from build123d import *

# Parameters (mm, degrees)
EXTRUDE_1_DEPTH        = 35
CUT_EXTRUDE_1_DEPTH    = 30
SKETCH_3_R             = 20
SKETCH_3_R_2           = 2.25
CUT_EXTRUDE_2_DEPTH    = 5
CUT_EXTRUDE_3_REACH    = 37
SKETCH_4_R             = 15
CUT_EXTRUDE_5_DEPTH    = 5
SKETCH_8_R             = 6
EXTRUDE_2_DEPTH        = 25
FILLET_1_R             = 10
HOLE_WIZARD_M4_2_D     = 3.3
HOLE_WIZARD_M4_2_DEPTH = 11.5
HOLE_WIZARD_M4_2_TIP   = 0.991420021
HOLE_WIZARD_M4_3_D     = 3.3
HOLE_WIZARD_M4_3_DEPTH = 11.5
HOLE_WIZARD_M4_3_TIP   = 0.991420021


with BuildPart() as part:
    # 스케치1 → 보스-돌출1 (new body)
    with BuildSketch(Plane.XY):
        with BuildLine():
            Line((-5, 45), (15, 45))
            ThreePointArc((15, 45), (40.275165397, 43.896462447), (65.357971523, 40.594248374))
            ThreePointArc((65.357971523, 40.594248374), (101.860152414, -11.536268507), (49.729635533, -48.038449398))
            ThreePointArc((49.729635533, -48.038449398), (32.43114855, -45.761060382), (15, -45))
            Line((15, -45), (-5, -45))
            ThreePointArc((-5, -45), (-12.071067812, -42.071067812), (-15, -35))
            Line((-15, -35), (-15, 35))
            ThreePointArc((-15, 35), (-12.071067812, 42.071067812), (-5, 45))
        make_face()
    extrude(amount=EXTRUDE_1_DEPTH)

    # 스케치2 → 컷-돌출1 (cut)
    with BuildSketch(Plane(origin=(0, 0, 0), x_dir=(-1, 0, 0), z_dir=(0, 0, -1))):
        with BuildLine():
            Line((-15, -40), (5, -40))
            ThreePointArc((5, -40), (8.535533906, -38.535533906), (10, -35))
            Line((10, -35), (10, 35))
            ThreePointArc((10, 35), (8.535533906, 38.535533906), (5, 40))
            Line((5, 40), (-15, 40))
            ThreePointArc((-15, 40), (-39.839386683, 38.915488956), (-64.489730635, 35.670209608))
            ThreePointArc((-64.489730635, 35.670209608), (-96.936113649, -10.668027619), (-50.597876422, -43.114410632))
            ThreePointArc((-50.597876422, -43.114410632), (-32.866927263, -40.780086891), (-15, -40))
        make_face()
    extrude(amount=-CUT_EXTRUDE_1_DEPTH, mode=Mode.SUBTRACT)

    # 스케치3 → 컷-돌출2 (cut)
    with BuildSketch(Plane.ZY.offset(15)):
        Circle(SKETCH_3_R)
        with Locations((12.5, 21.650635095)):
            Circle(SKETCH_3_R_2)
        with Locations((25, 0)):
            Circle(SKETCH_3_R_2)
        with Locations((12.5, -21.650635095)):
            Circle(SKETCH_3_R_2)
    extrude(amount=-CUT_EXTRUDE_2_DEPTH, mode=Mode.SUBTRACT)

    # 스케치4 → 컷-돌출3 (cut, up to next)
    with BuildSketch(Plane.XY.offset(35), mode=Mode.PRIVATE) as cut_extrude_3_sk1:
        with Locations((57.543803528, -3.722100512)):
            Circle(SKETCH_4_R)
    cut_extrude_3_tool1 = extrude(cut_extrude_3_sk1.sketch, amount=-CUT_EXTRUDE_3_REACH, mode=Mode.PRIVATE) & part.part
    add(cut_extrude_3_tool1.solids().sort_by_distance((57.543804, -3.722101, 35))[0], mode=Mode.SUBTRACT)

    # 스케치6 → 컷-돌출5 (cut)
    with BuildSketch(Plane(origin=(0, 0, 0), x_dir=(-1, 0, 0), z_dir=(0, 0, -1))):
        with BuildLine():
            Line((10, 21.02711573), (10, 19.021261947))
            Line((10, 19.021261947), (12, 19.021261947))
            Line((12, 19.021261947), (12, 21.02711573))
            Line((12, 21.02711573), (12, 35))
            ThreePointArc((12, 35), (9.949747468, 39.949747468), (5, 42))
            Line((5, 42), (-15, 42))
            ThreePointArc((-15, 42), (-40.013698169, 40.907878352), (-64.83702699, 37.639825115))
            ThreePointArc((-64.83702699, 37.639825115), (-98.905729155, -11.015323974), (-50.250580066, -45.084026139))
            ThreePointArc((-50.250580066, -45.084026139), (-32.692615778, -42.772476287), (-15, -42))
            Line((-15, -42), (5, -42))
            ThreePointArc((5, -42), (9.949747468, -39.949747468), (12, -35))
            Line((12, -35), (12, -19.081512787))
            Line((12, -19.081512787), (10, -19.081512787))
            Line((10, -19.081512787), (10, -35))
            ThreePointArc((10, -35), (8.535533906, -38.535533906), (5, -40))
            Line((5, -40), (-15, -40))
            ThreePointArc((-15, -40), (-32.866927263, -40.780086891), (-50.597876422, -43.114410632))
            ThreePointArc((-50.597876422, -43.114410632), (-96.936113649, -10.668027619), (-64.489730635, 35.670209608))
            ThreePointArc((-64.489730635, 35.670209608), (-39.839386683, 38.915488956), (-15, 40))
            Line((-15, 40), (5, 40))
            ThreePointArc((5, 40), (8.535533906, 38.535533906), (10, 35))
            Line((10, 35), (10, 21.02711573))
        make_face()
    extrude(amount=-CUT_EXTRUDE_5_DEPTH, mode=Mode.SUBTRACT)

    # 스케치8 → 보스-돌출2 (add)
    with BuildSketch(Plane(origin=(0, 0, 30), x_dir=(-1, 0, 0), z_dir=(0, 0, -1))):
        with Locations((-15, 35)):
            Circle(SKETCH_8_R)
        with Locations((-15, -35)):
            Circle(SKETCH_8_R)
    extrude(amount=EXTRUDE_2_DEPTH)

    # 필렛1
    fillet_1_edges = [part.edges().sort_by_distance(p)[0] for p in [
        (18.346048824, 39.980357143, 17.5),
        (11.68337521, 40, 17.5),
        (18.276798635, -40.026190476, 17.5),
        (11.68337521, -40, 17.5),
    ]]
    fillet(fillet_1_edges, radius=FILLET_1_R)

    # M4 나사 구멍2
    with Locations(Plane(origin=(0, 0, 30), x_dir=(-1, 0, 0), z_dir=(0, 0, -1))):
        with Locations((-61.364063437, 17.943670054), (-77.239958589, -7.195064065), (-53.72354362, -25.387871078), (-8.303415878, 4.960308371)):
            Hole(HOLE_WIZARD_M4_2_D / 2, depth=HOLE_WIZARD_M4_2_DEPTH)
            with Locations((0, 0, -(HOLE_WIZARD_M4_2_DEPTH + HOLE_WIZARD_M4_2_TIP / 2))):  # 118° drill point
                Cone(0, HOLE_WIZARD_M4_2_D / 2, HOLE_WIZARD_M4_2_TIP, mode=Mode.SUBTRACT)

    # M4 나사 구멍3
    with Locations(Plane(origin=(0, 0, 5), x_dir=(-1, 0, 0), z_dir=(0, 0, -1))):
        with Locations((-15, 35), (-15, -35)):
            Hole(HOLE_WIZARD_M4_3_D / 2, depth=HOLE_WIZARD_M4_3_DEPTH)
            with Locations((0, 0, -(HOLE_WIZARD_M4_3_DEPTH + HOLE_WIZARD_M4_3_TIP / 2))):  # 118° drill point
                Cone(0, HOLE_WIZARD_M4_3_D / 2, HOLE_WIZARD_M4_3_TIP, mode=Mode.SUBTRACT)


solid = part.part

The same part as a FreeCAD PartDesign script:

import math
import FreeCAD as App
import Part
import Sketcher
Q = App.Units.Quantity


def edges_at(feature, points):
    """Names of the edges that pass closest to the given points."""
    edges = feature.Shape.Edges
    near = lambda p: min(range(len(edges)), key=lambda i: edges[i].distToShape(Part.Vertex(*p))[0])
    return sorted({f"Edge{near(p) + 1}" for p in points})

doc = App.newDocument("Part")
body = doc.addObject("PartDesign::Body", "Body")

# Sketch on XY plane
sketch1 = body.newObject("Sketcher::SketchObject", "Sketch")
sketch1.AttachmentSupport = (doc.getObject("XY_Plane"), [""])
sketch1.MapMode = "FlatFace"
sketch1.addGeometry([
    Part.LineSegment(App.Vector(15, 45, 0), App.Vector(-5, 45, 0)),  # 0
    Part.ArcOfCircle(Part.Circle(App.Vector(-5, 35, 0), App.Vector(0, 0, 1), 10), math.radians(90), math.radians(180)),  # 1
    Part.LineSegment(App.Vector(-15, 35, 0), App.Vector(-15, -35, 0)),  # 2
    Part.ArcOfCircle(Part.Circle(App.Vector(-5, -35, 0), App.Vector(0, 0, 1), 10), math.radians(180), math.radians(270)),  # 3
    Part.LineSegment(App.Vector(-5, -45, 0), App.Vector(15, -45, 0)),  # 4
    Part.ArcOfCircle(Part.Circle(App.Vector(15, -245, 0), App.Vector(0, 0, 1), 200), math.radians(80), math.radians(90)),  # 5
    Part.ArcOfCircle(Part.Circle(App.Vector(58, -4, 0), App.Vector(0, 0, 1), 45), math.radians(-100), math.radians(80)),  # 6
    Part.ArcOfCircle(Part.Circle(App.Vector(15, -245, 0), App.Vector(0, 0, 1), 290), math.radians(80), math.radians(90)),  # 7
], False)
sketch1.addConstraint([
    Sketcher.Constraint("Tangent", 0, 2, 1, 1),
    Sketcher.Constraint("Tangent", 1, 2, 2, 1),
    Sketcher.Constraint("Tangent", 2, 2, 3, 1),
    Sketcher.Constraint("Tangent", 3, 2, 4, 1),
    Sketcher.Constraint("Tangent", 4, 2, 5, 2),
    Sketcher.Constraint("Tangent", 5, 1, 6, 1),
    Sketcher.Constraint("Tangent", 6, 2, 7, 1),
    Sketcher.Constraint("Tangent", 7, 2, 0, 1),
    Sketcher.Constraint("Horizontal", 0),
    Sketcher.Constraint("Vertical", 2),
    Sketcher.Constraint("Horizontal", 4),
    Sketcher.Constraint("Coincident", 7, 3, 5, 3),
    Sketcher.Constraint("Equal", 1, 3),
    Sketcher.Constraint("Radius", 1, Q("10 mm")),
    Sketcher.Constraint("Radius", 5, Q("200 mm")),
    Sketcher.Constraint("Radius", 6, Q("45 mm")),
    Sketcher.Constraint("DistanceX", 0, 2, 0, 1, Q("20 mm")),
    Sketcher.Constraint("DistanceX", 1, 3, -1, 1, Q("5 mm")),
    Sketcher.Constraint("DistanceY", -1, 1, 1, 3, Q("35 mm")),
    Sketcher.Constraint("DistanceY", 6, 3, -1, 1, Q("3.722101 mm")),
])
pad1 = body.newObject("PartDesign::Pad", "Pad")
pad1.Profile = sketch1
pad1.Length = 35

# Sketch on XY plane
sketch2 = body.newObject("Sketcher::SketchObject", "Sketch001")
sketch2.AttachmentSupport = (doc.getObject("XY_Plane"), [""])
sketch2.MapMode = "FlatFace"
sketch2.addGeometry([
    Part.LineSegment(App.Vector(15, -40, 0), App.Vector(-5, -40, 0)),  # 0
    Part.ArcOfCircle(Part.Circle(App.Vector(-5, -35, 0), App.Vector(0, 0, 1), 5), math.radians(180), math.radians(270)),  # 1
    Part.LineSegment(App.Vector(-10, -35, 0), App.Vector(-10, 35, 0)),  # 2
    Part.ArcOfCircle(Part.Circle(App.Vector(-5, 35, 0), App.Vector(0, 0, 1), 5), math.radians(90), math.radians(180)),  # 3
    Part.LineSegment(App.Vector(-5, 40, 0), App.Vector(15, 40, 0)),  # 4
    Part.ArcOfCircle(Part.Circle(App.Vector(15, -245, 0), App.Vector(0, 0, 1), 285), math.radians(80), math.radians(90)),  # 5
    Part.ArcOfCircle(Part.Circle(App.Vector(58, -4, 0), App.Vector(0, 0, 1), 40), math.radians(-100), math.radians(80)),  # 6
    Part.ArcOfCircle(Part.Circle(App.Vector(15, -245, 0), App.Vector(0, 0, 1), 205), math.radians(80), math.radians(90)),  # 7
], False)
sketch2.addConstraint([
    Sketcher.Constraint("Tangent", 0, 2, 1, 2),
    Sketcher.Constraint("Tangent", 1, 1, 2, 1),
    Sketcher.Constraint("Tangent", 2, 2, 3, 2),
    Sketcher.Constraint("Tangent", 3, 1, 4, 1),
    Sketcher.Constraint("Tangent", 4, 2, 5, 2),
    Sketcher.Constraint("Tangent", 5, 1, 6, 2),
    Sketcher.Constraint("Tangent", 6, 1, 7, 1),
    Sketcher.Constraint("Tangent", 7, 2, 0, 1),
    Sketcher.Constraint("Horizontal", 0),
    Sketcher.Constraint("Vertical", 2),
    Sketcher.Constraint("Horizontal", 4),
    Sketcher.Constraint("Coincident", 7, 3, 5, 3),
    Sketcher.Constraint("Equal", 1, 3),
    Sketcher.Constraint("Radius", 1, Q("5 mm")),
    Sketcher.Constraint("Radius", 5, Q("285 mm")),
    Sketcher.Constraint("Radius", 6, Q("40 mm")),
    Sketcher.Constraint("DistanceX", 0, 2, 0, 1, Q("20 mm")),
    Sketcher.Constraint("DistanceX", 1, 3, -1, 1, Q("5 mm")),
    Sketcher.Constraint("DistanceY", 1, 3, -1, 1, Q("35 mm")),
    Sketcher.Constraint("DistanceY", 6, 3, -1, 1, Q("3.722101 mm")),
])
pocket1 = body.newObject("PartDesign::Pocket", "Pocket")
pocket1.Profile = sketch2
pocket1.Length = 30
pocket1.Reversed = True

# Sketch on YZ plane
sketch3 = body.newObject("Sketcher::SketchObject", "Sketch002")
sketch3.AttachmentSupport = (doc.getObject("YZ_Plane"), [""])
sketch3.MapMode = "FlatFace"
sketch3.AttachmentOffset = App.Placement(App.Vector(0, 0, -15), App.Rotation())
sketch3.addGeometry([
    Part.Circle(App.Vector(0, 0, 0), App.Vector(0, 0, 1), 20),
    Part.Circle(App.Vector(21.7, 12.5, 0), App.Vector(0, 0, 1), 2.2),
    Part.Circle(App.Vector(0, 25, 0), App.Vector(0, 0, 1), 2.2),
    Part.Circle(App.Vector(-21.7, 12.5, 0), App.Vector(0, 0, 1), 2.2),
], False)
sketch3.addConstraint([
    Sketcher.Constraint("Coincident", 0, 3, -1, 1),
    Sketcher.Constraint("Equal", 1, 2),
    Sketcher.Constraint("Equal", 2, 3),
    Sketcher.Constraint("Symmetric", 1, 3, 3, 3, -2),
    Sketcher.Constraint("PointOnObject", 2, 3, -2),
    Sketcher.Constraint("Diameter", 0, Q("40 mm")),
    Sketcher.Constraint("Diameter", 1, Q("4.5 mm")),
    Sketcher.Constraint("DistanceY", -1, 1, 2, 3, Q("25 mm")),
    Sketcher.Constraint("DistanceY", -1, 1, 1, 3, Q("12.5 mm")),
    Sketcher.Constraint("DistanceX", 3, 3, 1, 3, Q("43.30127 mm")),
])
pocket2 = body.newObject("PartDesign::Pocket", "Pocket001")
pocket2.Profile = sketch3
pocket2.Length = 5
pocket2.Reversed = True

# Sketch on XY plane
sketch4 = body.newObject("Sketcher::SketchObject", "Sketch003")
sketch4.AttachmentSupport = (doc.getObject("XY_Plane"), [""])
sketch4.MapMode = "FlatFace"
sketch4.AttachmentOffset = App.Placement(App.Vector(0, 0, 35), App.Rotation())
sketch4.addGeometry(Part.Circle(App.Vector(58, -4, 0), App.Vector(0, 0, 1), 15), False)
sketch4.addConstraint([
    Sketcher.Constraint("Diameter", 0, Q("30 mm")),
    Sketcher.Constraint("DistanceY", 0, 3, -1, 1, Q("3.722101 mm")),
    Sketcher.Constraint("DistanceX", -1, 1, 0, 3, Q("57.543804 mm")),
])
pocket3 = body.newObject("PartDesign::Pocket", "Pocket002")
pocket3.Profile = sketch4
pocket3.Type = "UpToFirst"

# Sketch on XY plane
sketch5 = body.newObject("Sketcher::SketchObject", "Sketch004")
sketch5.AttachmentSupport = (doc.getObject("XY_Plane"), [""])
sketch5.MapMode = "FlatFace"
sketch5.addGeometry([
    Part.LineSegment(App.Vector(-10, 19, 0), App.Vector(-12, 19, 0)),  # 0
    Part.LineSegment(App.Vector(-12, 19, 0), App.Vector(-12, 35, 0)),  # 1
    Part.ArcOfCircle(Part.Circle(App.Vector(-5, 35, 0), App.Vector(0, 0, 1), 7), math.radians(90), math.radians(180)),  # 2
    Part.LineSegment(App.Vector(-5, 42, 0), App.Vector(15, 42, 0)),  # 3
    Part.ArcOfCircle(Part.Circle(App.Vector(15, -245, 0), App.Vector(0, 0, 1), 287), math.radians(80), math.radians(90)),  # 4
    Part.ArcOfCircle(Part.Circle(App.Vector(57.5, -3.7, 0), App.Vector(0, 0, 1), 42), math.radians(-100), math.radians(80)),  # 5
    Part.ArcOfCircle(Part.Circle(App.Vector(15, -245, 0), App.Vector(0, 0, 1), 203), math.radians(80), math.radians(90)),  # 6
    Part.LineSegment(App.Vector(15, -42, 0), App.Vector(-5, -42, 0)),  # 7
    Part.ArcOfCircle(Part.Circle(App.Vector(-5, -35, 0), App.Vector(0, 0, 1), 7), math.radians(-180), math.radians(-90)),  # 8
    Part.LineSegment(App.Vector(-12, -35, 0), App.Vector(-12, -19.1, 0)),  # 9
    Part.LineSegment(App.Vector(-12, -19.1, 0), App.Vector(-10, -19.1, 0)),  # 10
    Part.LineSegment(App.Vector(-10, -19.1, 0), App.Vector(-10, -35, 0)),  # 11
    Part.ArcOfCircle(Part.Circle(App.Vector(-5, -35, 0), App.Vector(0, 0, 1), 5), math.radians(180), math.radians(270)),  # 12
    Part.LineSegment(App.Vector(-5, -40, 0), App.Vector(15, -40, 0)),  # 13
    Part.ArcOfCircle(Part.Circle(App.Vector(15, -245, 0), App.Vector(0, 0, 1), 205), math.radians(80), math.radians(90)),  # 14
    Part.ArcOfCircle(Part.Circle(App.Vector(57.5, -3.7, 0), App.Vector(0, 0, 1), 40), math.radians(-100), math.radians(80)),  # 15
    Part.ArcOfCircle(Part.Circle(App.Vector(15, -245, 0), App.Vector(0, 0, 1), 285), math.radians(80), math.radians(90)),  # 16
    Part.LineSegment(App.Vector(15, 40, 0), App.Vector(-5, 40, 0)),  # 17
    Part.ArcOfCircle(Part.Circle(App.Vector(-5, 35, 0), App.Vector(0, 0, 1), 5), math.radians(90), math.radians(180)),  # 18
    Part.LineSegment(App.Vector(-10, 35, 0), App.Vector(-10, 19, 0)),  # 19
], False)
sketch5.addConstraint([
    Sketcher.Constraint("Coincident", 0, 2, 1, 1),
    Sketcher.Constraint("Tangent", 1, 2, 2, 2),
    Sketcher.Constraint("Tangent", 2, 1, 3, 1),
    Sketcher.Constraint("Tangent", 3, 2, 4, 2),
    Sketcher.Constraint("Tangent", 4, 1, 5, 2),
    Sketcher.Constraint("Tangent", 5, 1, 6, 1),
    Sketcher.Constraint("Tangent", 6, 2, 7, 1),
    Sketcher.Constraint("Tangent", 7, 2, 8, 2),
    Sketcher.Constraint("Tangent", 8, 1, 9, 1),
    Sketcher.Constraint("Coincident", 9, 2, 10, 1),
    Sketcher.Constraint("Coincident", 10, 2, 11, 1),
    Sketcher.Constraint("Tangent", 11, 2, 12, 1),
    Sketcher.Constraint("Tangent", 12, 2, 13, 1),
    Sketcher.Constraint("Tangent", 13, 2, 14, 2),
    Sketcher.Constraint("Tangent", 14, 1, 15, 1),
    Sketcher.Constraint("Tangent", 15, 2, 16, 1),
    Sketcher.Constraint("Tangent", 16, 2, 17, 1),
    Sketcher.Constraint("Tangent", 17, 2, 18, 1),
    Sketcher.Constraint("Tangent", 18, 2, 19, 1),
    Sketcher.Constraint("Coincident", 19, 2, 0, 1),
    Sketcher.Constraint("Horizontal", 0),
    Sketcher.Constraint("Vertical", 1),
    Sketcher.Constraint("Horizontal", 3),
    Sketcher.Constraint("Horizontal", 7),
    Sketcher.Constraint("Vertical", 9),
    Sketcher.Constraint("Horizontal", 10),
    Sketcher.Constraint("Vertical", 11),
    Sketcher.Constraint("Horizontal", 13),
    Sketcher.Constraint("Horizontal", 17),
    Sketcher.Constraint("Vertical", 19),
    Sketcher.Constraint("Coincident", 6, 3, 4, 3),
    Sketcher.Constraint("Coincident", 12, 3, 8, 3),
    Sketcher.Constraint("Coincident", 14, 3, 4, 3),
    Sketcher.Constraint("Coincident", 15, 3, 5, 3),
    Sketcher.Constraint("Coincident", 16, 3, 4, 3),
    Sketcher.Constraint("Coincident", 18, 3, 2, 3),
    Sketcher.Constraint("Equal", 2, 8),
    Sketcher.Constraint("Symmetric", 2, 3, 8, 3, -1),
    Sketcher.Constraint("Radius", 2, Q("7 mm")),
    Sketcher.Constraint("Radius", 4, Q("287 mm")),
    Sketcher.Constraint("Radius", 5, Q("42 mm")),
    Sketcher.Constraint("Radius", 12, Q("5 mm")),
    Sketcher.Constraint("DistanceX", 3, 1, 3, 2, Q("20 mm")),
    Sketcher.Constraint("DistanceX", 2, 3, -1, 1, Q("5 mm")),
    Sketcher.Constraint("DistanceY", 1, 1, 1, 2, Q("15.978738 mm")),
    Sketcher.Constraint("DistanceY", 5, 3, -1, 1, Q("3.722101 mm")),
    Sketcher.Constraint("DistanceY", 9, 1, 9, 2, Q("15.918487 mm")),
])
pocket4 = body.newObject("PartDesign::Pocket", "Pocket003")
pocket4.Profile = sketch5
pocket4.Length = 5
pocket4.Reversed = True

# Sketch on XY plane
sketch6 = body.newObject("Sketcher::SketchObject", "Sketch005")
sketch6.AttachmentSupport = (doc.getObject("XY_Plane"), [""])
sketch6.MapMode = "FlatFace"
sketch6.AttachmentOffset = App.Placement(App.Vector(0, 0, 30), App.Rotation())
sketch6.addGeometry([
    Part.Circle(App.Vector(15, 35, 0), App.Vector(0, 0, 1), 6),
    Part.Circle(App.Vector(15, -35, 0), App.Vector(0, 0, 1), 6),
], False)
sketch6.addConstraint([
    Sketcher.Constraint("Equal", 0, 1),
    Sketcher.Constraint("Symmetric", 0, 3, 1, 3, -1),
    Sketcher.Constraint("Diameter", 0, Q("12 mm")),
    Sketcher.Constraint("DistanceX", -1, 1, 0, 3, Q("15 mm")),
    Sketcher.Constraint("DistanceY", -1, 1, 0, 3, Q("35 mm")),
])
pad2 = body.newObject("PartDesign::Pad", "Pad001")
pad2.Profile = sketch6
pad2.Length = 25
pad2.Reversed = True
doc.recompute()

fillet = body.newObject("PartDesign::Fillet", "Fillet")
fillet.Base = (pad2, edges_at(pad2, [
    (18.346, 39.98, 17.5),
    (11.683, 40, 17.5),
    (18.277, -40.026, 17.5),
    (11.683, -40, 17.5),
]))
fillet.Radius = 10

# Sketch on XY plane
sketch7 = body.newObject("Sketcher::SketchObject", "Sketch006")
sketch7.AttachmentSupport = (doc.getObject("XY_Plane"), [""])
sketch7.MapMode = "FlatFace"
sketch7.AttachmentOffset = App.Placement(App.Vector(0, 0, 30), App.Rotation())
sketch7.addGeometry([
    Part.Circle(App.Vector(61.4, 17.9, 0), App.Vector(0, 0, 1), 1.6),
    Part.Circle(App.Vector(77.2, -7.2, 0), App.Vector(0, 0, 1), 1.6),
    Part.Circle(App.Vector(53.7, -25.4, 0), App.Vector(0, 0, 1), 1.6),
    Part.Circle(App.Vector(8.3, 5, 0), App.Vector(0, 0, 1), 1.6),
], False)
sketch7.addConstraint([
    Sketcher.Constraint("Equal", 0, 1),
    Sketcher.Constraint("Equal", 1, 2),
    Sketcher.Constraint("Equal", 2, 3),
    Sketcher.Constraint("Diameter", 0, Q("3.3 mm")),
    Sketcher.Constraint("DistanceY", -1, 1, 0, 3, Q("17.94367 mm")),
    Sketcher.Constraint("DistanceX", -1, 1, 1, 3, Q("77.239959 mm")),
    Sketcher.Constraint("DistanceY", 2, 3, -1, 1, Q("25.387871 mm")),
    Sketcher.Constraint("DistanceY", -1, 1, 3, 3, Q("4.960308 mm")),
    Sketcher.Constraint("DistanceX", 2, 3, 0, 3, Q("7.64052 mm")),
    Sketcher.Constraint("DistanceX", -1, 1, 0, 3, Q("61.364063 mm")),
    Sketcher.Constraint("DistanceY", 1, 3, -1, 1, Q("7.195064 mm")),
    Sketcher.Constraint("DistanceX", -1, 1, 3, 3, Q("8.303416 mm")),
])
doc.recompute()
hole = body.newObject("PartDesign::Hole", "Hole")
hole.Profile = sketch7
hole.ThreadType = "None"
hole.Diameter = 3.3
hole.DepthType = "Dimension"
hole.Depth = 11.5
hole.DrillPoint = "Angled"
hole.DrillPointAngle = 118
hole.Reversed = True

# Sketch on XY plane
sketch8 = body.newObject("Sketcher::SketchObject", "Sketch007")
sketch8.AttachmentSupport = (doc.getObject("XY_Plane"), [""])
sketch8.MapMode = "FlatFace"
sketch8.AttachmentOffset = App.Placement(App.Vector(0, 0, 5), App.Rotation())
sketch8.addGeometry([
    Part.Circle(App.Vector(15, 35, 0), App.Vector(0, 0, 1), 1.6),
    Part.Circle(App.Vector(15, -35, 0), App.Vector(0, 0, 1), 1.6),
], False)
sketch8.addConstraint([
    Sketcher.Constraint("Equal", 0, 1),
    Sketcher.Constraint("Symmetric", 0, 3, 1, 3, -1),
    Sketcher.Constraint("Diameter", 0, Q("3.3 mm")),
    Sketcher.Constraint("DistanceX", -1, 1, 0, 3, Q("15 mm")),
    Sketcher.Constraint("DistanceY", -1, 1, 0, 3, Q("35 mm")),
])
doc.recompute()
hole2 = body.newObject("PartDesign::Hole", "Hole001")
hole2.Profile = sketch8
hole2.ThreadType = "None"
hole2.Diameter = 3.3
hole2.DepthType = "Dimension"
hole2.Depth = 11.5
hole2.DrillPoint = "Angled"
hole2.DrillPointAngle = 118
hole2.Reversed = True

doc.recompute()
